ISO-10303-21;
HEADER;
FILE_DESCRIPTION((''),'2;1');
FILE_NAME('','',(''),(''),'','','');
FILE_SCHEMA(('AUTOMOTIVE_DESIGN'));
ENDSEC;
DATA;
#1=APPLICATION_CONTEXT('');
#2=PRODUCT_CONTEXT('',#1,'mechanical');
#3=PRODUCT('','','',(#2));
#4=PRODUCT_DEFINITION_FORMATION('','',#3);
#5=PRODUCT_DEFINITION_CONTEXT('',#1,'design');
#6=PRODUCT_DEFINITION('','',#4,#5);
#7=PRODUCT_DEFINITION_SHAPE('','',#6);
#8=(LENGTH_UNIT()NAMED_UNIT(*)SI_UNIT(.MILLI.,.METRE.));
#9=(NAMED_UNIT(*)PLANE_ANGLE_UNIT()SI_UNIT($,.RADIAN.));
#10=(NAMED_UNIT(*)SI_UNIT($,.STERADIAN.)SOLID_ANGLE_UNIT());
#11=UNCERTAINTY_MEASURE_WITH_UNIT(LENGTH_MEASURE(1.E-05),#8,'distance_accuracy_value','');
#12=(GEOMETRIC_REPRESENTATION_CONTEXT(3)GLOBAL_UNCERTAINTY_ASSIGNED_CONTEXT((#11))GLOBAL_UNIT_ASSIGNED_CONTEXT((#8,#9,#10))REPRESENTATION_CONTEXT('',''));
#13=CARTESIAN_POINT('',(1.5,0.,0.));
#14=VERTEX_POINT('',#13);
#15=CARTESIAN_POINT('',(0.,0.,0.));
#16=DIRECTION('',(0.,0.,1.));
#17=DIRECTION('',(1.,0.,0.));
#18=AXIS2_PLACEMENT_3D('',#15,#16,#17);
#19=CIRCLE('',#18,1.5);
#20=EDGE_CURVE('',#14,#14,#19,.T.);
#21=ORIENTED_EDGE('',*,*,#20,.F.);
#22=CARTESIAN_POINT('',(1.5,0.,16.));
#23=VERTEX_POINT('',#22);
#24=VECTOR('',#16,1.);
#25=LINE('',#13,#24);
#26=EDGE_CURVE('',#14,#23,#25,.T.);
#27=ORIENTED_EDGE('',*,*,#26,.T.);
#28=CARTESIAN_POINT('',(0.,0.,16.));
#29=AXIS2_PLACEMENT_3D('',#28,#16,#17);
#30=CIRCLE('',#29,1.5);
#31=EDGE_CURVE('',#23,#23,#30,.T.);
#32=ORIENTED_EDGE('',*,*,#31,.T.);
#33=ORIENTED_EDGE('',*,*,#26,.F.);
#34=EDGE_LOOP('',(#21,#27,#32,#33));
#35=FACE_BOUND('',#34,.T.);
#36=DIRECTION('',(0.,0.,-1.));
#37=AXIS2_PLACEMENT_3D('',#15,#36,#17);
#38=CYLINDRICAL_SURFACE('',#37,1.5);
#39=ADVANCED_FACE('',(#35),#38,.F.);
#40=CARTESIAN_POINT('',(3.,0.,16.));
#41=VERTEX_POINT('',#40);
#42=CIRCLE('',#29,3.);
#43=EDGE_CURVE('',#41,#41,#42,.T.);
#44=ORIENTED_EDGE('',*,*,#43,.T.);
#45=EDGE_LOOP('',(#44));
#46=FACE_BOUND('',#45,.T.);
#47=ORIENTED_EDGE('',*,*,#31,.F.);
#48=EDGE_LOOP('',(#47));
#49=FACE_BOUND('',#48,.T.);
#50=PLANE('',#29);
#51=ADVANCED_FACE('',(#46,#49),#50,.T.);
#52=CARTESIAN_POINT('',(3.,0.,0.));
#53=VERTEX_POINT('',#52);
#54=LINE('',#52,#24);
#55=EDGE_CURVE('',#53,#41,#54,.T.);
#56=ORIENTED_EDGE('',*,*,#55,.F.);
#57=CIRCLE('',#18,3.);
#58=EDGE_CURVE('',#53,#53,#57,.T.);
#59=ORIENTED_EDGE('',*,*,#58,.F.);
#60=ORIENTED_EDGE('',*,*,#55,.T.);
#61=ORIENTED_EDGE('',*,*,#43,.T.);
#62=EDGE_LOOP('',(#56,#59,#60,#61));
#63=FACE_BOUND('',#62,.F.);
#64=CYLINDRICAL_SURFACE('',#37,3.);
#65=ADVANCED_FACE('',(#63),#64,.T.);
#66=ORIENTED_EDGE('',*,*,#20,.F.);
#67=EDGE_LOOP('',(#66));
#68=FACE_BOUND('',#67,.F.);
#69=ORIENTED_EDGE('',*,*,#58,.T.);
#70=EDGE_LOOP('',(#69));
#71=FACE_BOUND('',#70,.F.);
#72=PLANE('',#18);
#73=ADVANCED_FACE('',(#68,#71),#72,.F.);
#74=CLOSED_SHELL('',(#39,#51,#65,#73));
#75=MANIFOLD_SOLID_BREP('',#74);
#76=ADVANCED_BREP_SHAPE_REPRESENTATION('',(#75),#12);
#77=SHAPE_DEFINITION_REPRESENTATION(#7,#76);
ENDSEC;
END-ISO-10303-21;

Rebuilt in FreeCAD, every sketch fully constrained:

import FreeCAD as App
import Part
import Sketcher
from FreeCAD import Vector
Q = App.Units.Quantity

doc = App.newDocument("Part")
body = doc.addObject("PartDesign::Body", "Body")

# Sketch on XY plane
sketch1 = doc.addObject("Sketcher::SketchObject", "Sketch")
body.addObject(sketch1)
sketch1.AttachmentSupport = (doc.XY_Plane, [""])
sketch1.MapMode = "FlatFace"
sketch1.addGeometry([
    Part.Circle(Vector(0, 0, 0), Vector(0, 0, 1), 3),
    Part.Circle(Vector(0, 0, 0), Vector(0, 0, 1), 1.5),
], False)
sketch1.addConstraint([
    Sketcher.Constraint("Coincident", 0, 3, -1, 1),
    Sketcher.Constraint("Coincident", 1, 3, -1, 1),
    Sketcher.Constraint("Diameter", 0, Q("6 mm")),
    Sketcher.Constraint("Diameter", 1, Q("3 mm")),
])
pad1 = doc.addObject("PartDesign::Pad", "Pad")
body.addObject(pad1)
pad1.Profile = sketch1
pad1.Length = 16

doc.recompute()
